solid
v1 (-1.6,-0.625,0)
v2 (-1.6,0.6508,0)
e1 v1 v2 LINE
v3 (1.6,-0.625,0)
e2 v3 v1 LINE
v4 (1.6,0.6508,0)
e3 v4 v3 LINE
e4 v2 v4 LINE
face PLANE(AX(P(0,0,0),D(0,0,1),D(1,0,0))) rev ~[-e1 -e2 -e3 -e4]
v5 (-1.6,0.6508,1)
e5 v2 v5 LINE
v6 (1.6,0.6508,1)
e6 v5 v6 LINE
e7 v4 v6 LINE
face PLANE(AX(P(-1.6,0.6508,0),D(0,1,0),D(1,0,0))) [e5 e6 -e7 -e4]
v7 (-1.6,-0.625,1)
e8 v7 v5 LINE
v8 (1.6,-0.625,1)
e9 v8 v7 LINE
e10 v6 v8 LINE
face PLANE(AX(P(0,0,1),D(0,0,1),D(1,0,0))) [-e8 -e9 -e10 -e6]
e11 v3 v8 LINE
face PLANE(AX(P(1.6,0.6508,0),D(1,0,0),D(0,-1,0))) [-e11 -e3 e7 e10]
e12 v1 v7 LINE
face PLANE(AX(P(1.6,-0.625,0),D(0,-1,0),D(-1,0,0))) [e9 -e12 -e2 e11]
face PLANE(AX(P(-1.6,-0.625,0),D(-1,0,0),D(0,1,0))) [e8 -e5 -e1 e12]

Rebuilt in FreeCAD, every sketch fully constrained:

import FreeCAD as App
import Part
import Sketcher
from FreeCAD import Vector
Q = App.Units.Quantity

doc = App.newDocument("Part")
body = doc.addObject("PartDesign::Body", "Body")

# Sketch on XY plane
sketch1 = doc.addObject("Sketcher::SketchObject", "Sketch")
body.addObject(sketch1)
sketch1.AttachmentSupport = (doc.XY_Plane, [""])
sketch1.MapMode = "FlatFace"
sketch1.addGeometry([
    Part.LineSegment(Vector(1.6, 0.7, 0), Vector(-1.6, 0.7, 0)),
    Part.LineSegment(Vector(-1.6, 0.7, 0), Vector(-1.6, -0.6, 0)),
    Part.LineSegment(Vector(-1.6, -0.6, 0), Vector(1.6, -0.6, 0)),
    Part.LineSegment(Vector(1.6, -0.6, 0), Vector(1.6, 0.7, 0)),
], False)
sketch1.addConstraint([
    Sketcher.Constraint("Coincident", 0, 2, 1, 1),
    Sketcher.Constraint("Coincident", 1, 2, 2, 1),
    Sketcher.Constraint("Coincident", 2, 2, 3, 1),
    Sketcher.Constraint("Coincident", 3, 2, 0, 1),
    Sketcher.Constraint("Horizontal", 0),
    Sketcher.Constraint("Vertical", 1),
    Sketcher.Constraint("Horizontal", 2),
    Sketcher.Constraint("Vertical", 3),
    Sketcher.Constraint("DistanceX", 0, 2, 0, 1, Q("3.2 mm")),
    Sketcher.Constraint("DistanceX", 0, 2, -1, 1, Q("1.6 mm")),
    Sketcher.Constraint("DistanceY", 1, 2, 1, 1, Q("1.2758 mm")),
    Sketcher.Constraint("DistanceY", 1, 2, -1, 1, Q("0.625 mm")),
])
pad1 = doc.addObject("PartDesign::Pad", "Pad")
body.addObject(pad1)
pad1.Profile = sketch1
pad1.Length = 1

doc.recompute()
